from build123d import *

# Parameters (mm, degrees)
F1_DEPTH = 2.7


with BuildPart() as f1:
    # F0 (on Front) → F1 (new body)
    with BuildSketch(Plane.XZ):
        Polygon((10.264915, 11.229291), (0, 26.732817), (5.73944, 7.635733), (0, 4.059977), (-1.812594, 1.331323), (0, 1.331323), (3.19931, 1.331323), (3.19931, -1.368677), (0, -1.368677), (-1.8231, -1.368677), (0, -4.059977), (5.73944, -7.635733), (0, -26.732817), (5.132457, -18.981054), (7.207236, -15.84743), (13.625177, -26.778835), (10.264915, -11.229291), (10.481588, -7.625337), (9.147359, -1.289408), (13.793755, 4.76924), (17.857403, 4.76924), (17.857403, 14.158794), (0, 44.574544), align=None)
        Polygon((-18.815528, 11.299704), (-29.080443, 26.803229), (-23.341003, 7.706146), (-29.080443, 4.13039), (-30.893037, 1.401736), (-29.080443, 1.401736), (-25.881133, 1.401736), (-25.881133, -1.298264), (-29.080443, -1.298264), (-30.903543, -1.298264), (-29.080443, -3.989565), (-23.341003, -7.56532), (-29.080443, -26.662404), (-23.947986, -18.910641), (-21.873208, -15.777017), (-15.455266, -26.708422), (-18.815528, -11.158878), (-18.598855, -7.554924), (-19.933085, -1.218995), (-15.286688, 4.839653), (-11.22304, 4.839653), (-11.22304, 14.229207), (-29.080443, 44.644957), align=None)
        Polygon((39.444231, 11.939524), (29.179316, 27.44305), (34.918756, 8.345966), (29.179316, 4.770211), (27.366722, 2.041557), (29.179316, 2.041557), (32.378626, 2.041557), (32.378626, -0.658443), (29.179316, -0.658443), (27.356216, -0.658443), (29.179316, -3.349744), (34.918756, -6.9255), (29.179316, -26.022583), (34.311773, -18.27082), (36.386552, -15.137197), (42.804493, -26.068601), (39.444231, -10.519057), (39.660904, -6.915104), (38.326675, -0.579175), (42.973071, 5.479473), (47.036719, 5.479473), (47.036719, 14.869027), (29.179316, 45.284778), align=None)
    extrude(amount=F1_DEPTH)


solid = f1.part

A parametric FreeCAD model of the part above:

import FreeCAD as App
import Part
import Sketcher

V = App.Vector
Q = App.Units.Quantity


def add_polygon(sketch, points):
    """Adds a closed chain of lines whose ends are joined by coincident constraints."""
    first, n = sketch.GeometryCount, len(points)
    for a, b in zip(points, points[1:] + points[:1]):
        sketch.addGeometry(Part.LineSegment(App.Vector(*a, 0), App.Vector(*b, 0)), False)
    for i in range(n):
        sketch.addConstraint(Sketcher.Constraint("Coincident", first + i, 2, first + (i + 1) % n, 1))

doc = App.newDocument("Part")
body = doc.addObject("PartDesign::Body", "Body")
body.AllowCompound = True

sketch1 = body.newObject("Sketcher::SketchObject", "Sketch")
sketch1.AttachmentSupport = (doc.getObject("XZ_Plane"), [""])
sketch1.MapMode = "FlatFace"
add_polygon(sketch1, [(10.264915, 11.229291), (0, 26.732817), (5.73944, 7.635733), (0, 4.059977), (-1.812594, 1.331323), (3.19931, 1.331323), (3.19931, -1.368677), (-1.8231, -1.368677), (0, -4.059977), (5.73944, -7.635733), (0, -26.732817), (5.132457, -18.981054), (7.207236, -15.84743), (13.625177, -26.778835), (10.264915, -11.229291), (10.481588, -7.625337), (9.147359, -1.289408), (13.793755, 4.76924), (17.857403, 4.76924), (17.857403, 14.158794), (0, 44.574544)])
add_polygon(sketch1, [(-18.815528, 11.299704), (-29.080443, 26.803229), (-23.341003, 7.706146), (-29.080443, 4.13039), (-30.893037, 1.401736), (-25.881133, 1.401736), (-25.881133, -1.298264), (-30.903543, -1.298264), (-29.080443, -3.989565), (-23.341003, -7.56532), (-29.080443, -26.662404), (-23.947986, -18.910641), (-21.873208, -15.777017), (-15.455266, -26.708422), (-18.815528, -11.158878), (-18.598855, -7.554924), (-19.933085, -1.218995), (-15.286688, 4.839653), (-11.22304, 4.839653), (-11.22304, 14.229207), (-29.080443, 44.644957)])
add_polygon(sketch1, [(39.444231, 11.939524), (29.179316, 27.44305), (34.918756, 8.345966), (29.179316, 4.770211), (27.366722, 2.041557), (32.378626, 2.041557), (32.378626, -0.658443), (27.356216, -0.658443), (29.179316, -3.349744), (34.918756, -6.9255), (29.179316, -26.022583), (34.311773, -18.27082), (36.386552, -15.137197), (42.804493, -26.068601), (39.444231, -10.519057), (39.660904, -6.915104), (38.326675, -0.579175), (42.973071, 5.479473), (47.036719, 5.479473), (47.036719, 14.869027), (29.179316, 45.284778)])
sketch1.addConstraint(Sketcher.Constraint("Horizontal", 4))
sketch1.addConstraint(Sketcher.Constraint("Vertical", 5))
sketch1.addConstraint(Sketcher.Constraint("Horizontal", 6))
sketch1.addConstraint(Sketcher.Constraint("Horizontal", 17))
sketch1.addConstraint(Sketcher.Constraint("Vertical", 18))
sketch1.addConstraint(Sketcher.Constraint("Horizontal", 25))
sketch1.addConstraint(Sketcher.Constraint("Vertical", 26))
sketch1.addConstraint(Sketcher.Constraint("Horizontal", 27))
sketch1.addConstraint(Sketcher.Constraint("Horizontal", 38))
sketch1.addConstraint(Sketcher.Constraint("Vertical", 39))
sketch1.addConstraint(Sketcher.Constraint("Horizontal", 46))
sketch1.addConstraint(Sketcher.Constraint("Vertical", 47))
sketch1.addConstraint(Sketcher.Constraint("Horizontal", 48))
sketch1.addConstraint(Sketcher.Constraint("Horizontal", 59))
sketch1.addConstraint(Sketcher.Constraint("Vertical", 60))
sketch1.addConstraint(Sketcher.Constraint("Symmetric", 2, 2, 7, 2, -1, 1))
sketch1.addConstraint(Sketcher.Constraint("Symmetric", 0, 2, 9, 2, -1, 1))
sketch1.addConstraint(Sketcher.Constraint("Symmetric", 1, 2, 8, 2, -1))
sketch1.addConstraint(Sketcher.Constraint("Symmetric", 13, 2, 20, 2, -1))
sketch1.addConstraint(Sketcher.Constraint("PointOnObject", 0, 2, -2))
sketch1.addConstraint(Sketcher.Constraint("PointOnObject", 2, 2, -2))
sketch1.addConstraint(Sketcher.Constraint("PointOnObject", 19, 2, -2))
sketch1.addConstraint(Sketcher.Constraint("Parallel", 10, 11))
sketch1.addConstraint(Sketcher.Constraint("Parallel", 12, 19))
sketch1.addConstraint(Sketcher.Constraint("Parallel", 0, 21))
sketch1.addConstraint(Sketcher.Constraint("Parallel", 1, 22))
sketch1.addConstraint(Sketcher.Constraint("Parallel", 2, 23))
sketch1.addConstraint(Sketcher.Constraint("Parallel", 3, 24))
sketch1.addConstraint(Sketcher.Constraint("Parallel", 7, 28))
sketch1.addConstraint(Sketcher.Constraint("Parallel", 8, 29))
sketch1.addConstraint(Sketcher.Constraint("Parallel", 9, 30))
sketch1.addConstraint(Sketcher.Constraint("Parallel", 11, 31))
sketch1.addConstraint(Sketcher.Constraint("Parallel", 31, 32))
sketch1.addConstraint(Sketcher.Constraint("Parallel", 19, 33))
sketch1.addConstraint(Sketcher.Constraint("Parallel", 13, 34))
sketch1.addConstraint(Sketcher.Constraint("Parallel", 14, 35))
sketch1.addConstraint(Sketcher.Constraint("Parallel", 15, 36))
sketch1.addConstraint(Sketcher.Constraint("Parallel", 16, 37))
sketch1.addConstraint(Sketcher.Constraint("Parallel", 33, 40))
sketch1.addConstraint(Sketcher.Constraint("Parallel", 20, 41))
sketch1.addConstraint(Sketcher.Constraint("Parallel", 21, 42))
sketch1.addConstraint(Sketcher.Constraint("Parallel", 22, 43))
sketch1.addConstraint(Sketcher.Constraint("Parallel", 23, 44))
sketch1.addConstraint(Sketcher.Constraint("Parallel", 24, 45))
sketch1.addConstraint(Sketcher.Constraint("Parallel", 28, 49))
sketch1.addConstraint(Sketcher.Constraint("Parallel", 29, 50))
sketch1.addConstraint(Sketcher.Constraint("Parallel", 30, 51))
sketch1.addConstraint(Sketcher.Constraint("Parallel", 32, 52))
sketch1.addConstraint(Sketcher.Constraint("Parallel", 52, 53))
sketch1.addConstraint(Sketcher.Constraint("Parallel", 40, 54))
sketch1.addConstraint(Sketcher.Constraint("Parallel", 34, 55))
sketch1.addConstraint(Sketcher.Constraint("Parallel", 35, 56))
sketch1.addConstraint(Sketcher.Constraint("Parallel", 36, 57))
sketch1.addConstraint(Sketcher.Constraint("Parallel", 37, 58))
sketch1.addConstraint(Sketcher.Constraint("Parallel", 54, 61))
sketch1.addConstraint(Sketcher.Constraint("Parallel", 41, 62))
sketch1.addConstraint(Sketcher.Constraint("Vertical", 21, 2, 23, 2))
sketch1.addConstraint(Sketcher.Constraint("Vertical", 23, 2, 28, 2))
sketch1.addConstraint(Sketcher.Constraint("Vertical", 22, 2, 29, 2))
sketch1.addConstraint(Sketcher.Constraint("Vertical", 28, 2, 30, 2))
sketch1.addConstraint(Sketcher.Constraint("Vertical", 30, 2, 40, 2))
sketch1.addConstraint(Sketcher.Constraint("Vertical", 34, 2, 41, 2))
sketch1.addConstraint(Sketcher.Constraint("Vertical", 42, 2, 44, 2))
sketch1.addConstraint(Sketcher.Constraint("Vertical", 44, 2, 49, 2))
sketch1.addConstraint(Sketcher.Constraint("Vertical", 43, 2, 50, 2))
sketch1.addConstraint(Sketcher.Constraint("Vertical", 49, 2, 51, 2))
sketch1.addConstraint(Sketcher.Constraint("Vertical", 51, 2, 61, 2))
sketch1.addConstraint(Sketcher.Constraint("Vertical", 55, 2, 62, 2))
sketch1.addConstraint(Sketcher.Constraint("Equal", 4, 25))
sketch1.addConstraint(Sketcher.Constraint("Equal", 6, 27))
sketch1.addConstraint(Sketcher.Constraint("Equal", 17, 38))
sketch1.addConstraint(Sketcher.Constraint("Equal", 25, 46))
sketch1.addConstraint(Sketcher.Constraint("Equal", 27, 48))
sketch1.addConstraint(Sketcher.Constraint("Equal", 38, 59))
sketch1.addConstraint(Sketcher.Constraint("Equal", 5, 26))
sketch1.addConstraint(Sketcher.Constraint("Equal", 18, 39))
sketch1.addConstraint(Sketcher.Constraint("Equal", 26, 47))
sketch1.addConstraint(Sketcher.Constraint("Equal", 39, 60))
sketch1.addConstraint(Sketcher.Constraint("Equal", 0, 21))
sketch1.addConstraint(Sketcher.Constraint("Equal", 9, 22))
sketch1.addConstraint(Sketcher.Constraint("Equal", 3, 24))
sketch1.addConstraint(Sketcher.Constraint("Equal", 10, 31))
sketch1.addConstraint(Sketcher.Constraint("Equal", 11, 32))
sketch1.addConstraint(Sketcher.Constraint("Equal", 12, 33))
sketch1.addConstraint(Sketcher.Constraint("Equal", 14, 35))
sketch1.addConstraint(Sketcher.Constraint("Equal", 15, 36))
sketch1.addConstraint(Sketcher.Constraint("Equal", 21, 42))
sketch1.addConstraint(Sketcher.Constraint("Equal", 30, 43))
sketch1.addConstraint(Sketcher.Constraint("Equal", 24, 45))
sketch1.addConstraint(Sketcher.Constraint("Equal", 31, 52))
sketch1.addConstraint(Sketcher.Constraint("Equal", 32, 53))
sketch1.addConstraint(Sketcher.Constraint("Equal", 33, 54))
sketch1.addConstraint(Sketcher.Constraint("Equal", 35, 56))
sketch1.addConstraint(Sketcher.Constraint("Equal", 36, 57))
sketch1.addConstraint(Sketcher.Constraint("DistanceY", 5, 2, 5, 1, Q("2.7 mm")))
sketch1.addConstraint(Sketcher.Constraint("DistanceX", 6, 2, 6, 1, Q("5.02241 mm")))
sketch1.addConstraint(Sketcher.Constraint("DistanceX", 17, 1, 17, 2, Q("4.063648 mm")))
sketch1.addConstraint(Sketcher.Constraint("DistanceX", 6, 2, -1, 1, Q("1.8231 mm")))
sketch1.addConstraint(Sketcher.Constraint("DistanceY", 50, 2, -1, 1, Q("6.9255 mm")))
sketch1.addConstraint(Sketcher.Constraint("DistanceY", 54, 2, -1, 1, Q("26.068601 mm")))
sketch1.addConstraint(Sketcher.Constraint("Distance", 2, Q("6.762189 mm")))
sketch1.addConstraint(Sketcher.Constraint("Distance", 3, Q("3.275828 mm")))
sketch1.addConstraint(Sketcher.Constraint("Distance", 7, Q("3.25066 mm")))
sketch1.addConstraint(Sketcher.Constraint("Distance", 10, Q("9.296878 mm")))
sketch1.addConstraint(Sketcher.Constraint("Distance", 11, Q("3.758232 mm")))
sketch1.addConstraint(Sketcher.Constraint("Distance", 12, Q("12.676182 mm")))
sketch1.addConstraint(Sketcher.Constraint("Distance", 13, Q("15.908478 mm")))
sketch1.addConstraint(Sketcher.Constraint("Distance", 14, Q("3.610461 mm")))
sketch1.addConstraint(Sketcher.Constraint("Distance", 19, Q("35.270451 mm")))
sketch1.addConstraint(Sketcher.Constraint("Distance", 20, Q("34.889459 mm")))
sketch1.addConstraint(Sketcher.Constraint("DistanceX", 4, 1, 4, 2, Q("5.011904 mm")))
sketch1.addConstraint(Sketcher.Constraint("DistanceY", 18, 1, 18, 2, Q("9.389554 mm")))
sketch1.addConstraint(Sketcher.Constraint("DistanceX", -1, 1, 1, 2, Q("5.73944 mm")))
sketch1.addConstraint(Sketcher.Constraint("DistanceY", 11, 2, -1, 1, Q("15.84743 mm")))
sketch1.addConstraint(Sketcher.Constraint("DistanceY", 13, 2, -1, 1, Q("11.229291 mm")))
sketch1.addConstraint(Sketcher.Constraint("DistanceX", -1, 1, 15, 2, Q("9.147359 mm")))
sketch1.addConstraint(Sketcher.Constraint("DistanceY", 15, 2, -1, 1, Q("1.289408 mm")))
sketch1.addConstraint(Sketcher.Constraint("DistanceY", -1, 1, 16, 2, Q("4.76924 mm")))
sketch1.addConstraint(Sketcher.Constraint("DistanceY", -1, 1, 21, 2, Q("26.803229 mm")))
sketch1.addConstraint(Sketcher.Constraint("DistanceX", 32, 2, -1, 1, Q("21.873208 mm")))
sketch1.addConstraint(Sketcher.Constraint("DistanceX", -1, 1, 45, 2, Q("27.366722 mm")))
sketch1.addConstraint(Sketcher.Constraint("Distance", 15, Q("6.474887 mm")))
pad1 = body.newObject("PartDesign::Pad", "Pad")
pad1.Profile = sketch1
pad1.Length = 2.7

doc.recompute()
